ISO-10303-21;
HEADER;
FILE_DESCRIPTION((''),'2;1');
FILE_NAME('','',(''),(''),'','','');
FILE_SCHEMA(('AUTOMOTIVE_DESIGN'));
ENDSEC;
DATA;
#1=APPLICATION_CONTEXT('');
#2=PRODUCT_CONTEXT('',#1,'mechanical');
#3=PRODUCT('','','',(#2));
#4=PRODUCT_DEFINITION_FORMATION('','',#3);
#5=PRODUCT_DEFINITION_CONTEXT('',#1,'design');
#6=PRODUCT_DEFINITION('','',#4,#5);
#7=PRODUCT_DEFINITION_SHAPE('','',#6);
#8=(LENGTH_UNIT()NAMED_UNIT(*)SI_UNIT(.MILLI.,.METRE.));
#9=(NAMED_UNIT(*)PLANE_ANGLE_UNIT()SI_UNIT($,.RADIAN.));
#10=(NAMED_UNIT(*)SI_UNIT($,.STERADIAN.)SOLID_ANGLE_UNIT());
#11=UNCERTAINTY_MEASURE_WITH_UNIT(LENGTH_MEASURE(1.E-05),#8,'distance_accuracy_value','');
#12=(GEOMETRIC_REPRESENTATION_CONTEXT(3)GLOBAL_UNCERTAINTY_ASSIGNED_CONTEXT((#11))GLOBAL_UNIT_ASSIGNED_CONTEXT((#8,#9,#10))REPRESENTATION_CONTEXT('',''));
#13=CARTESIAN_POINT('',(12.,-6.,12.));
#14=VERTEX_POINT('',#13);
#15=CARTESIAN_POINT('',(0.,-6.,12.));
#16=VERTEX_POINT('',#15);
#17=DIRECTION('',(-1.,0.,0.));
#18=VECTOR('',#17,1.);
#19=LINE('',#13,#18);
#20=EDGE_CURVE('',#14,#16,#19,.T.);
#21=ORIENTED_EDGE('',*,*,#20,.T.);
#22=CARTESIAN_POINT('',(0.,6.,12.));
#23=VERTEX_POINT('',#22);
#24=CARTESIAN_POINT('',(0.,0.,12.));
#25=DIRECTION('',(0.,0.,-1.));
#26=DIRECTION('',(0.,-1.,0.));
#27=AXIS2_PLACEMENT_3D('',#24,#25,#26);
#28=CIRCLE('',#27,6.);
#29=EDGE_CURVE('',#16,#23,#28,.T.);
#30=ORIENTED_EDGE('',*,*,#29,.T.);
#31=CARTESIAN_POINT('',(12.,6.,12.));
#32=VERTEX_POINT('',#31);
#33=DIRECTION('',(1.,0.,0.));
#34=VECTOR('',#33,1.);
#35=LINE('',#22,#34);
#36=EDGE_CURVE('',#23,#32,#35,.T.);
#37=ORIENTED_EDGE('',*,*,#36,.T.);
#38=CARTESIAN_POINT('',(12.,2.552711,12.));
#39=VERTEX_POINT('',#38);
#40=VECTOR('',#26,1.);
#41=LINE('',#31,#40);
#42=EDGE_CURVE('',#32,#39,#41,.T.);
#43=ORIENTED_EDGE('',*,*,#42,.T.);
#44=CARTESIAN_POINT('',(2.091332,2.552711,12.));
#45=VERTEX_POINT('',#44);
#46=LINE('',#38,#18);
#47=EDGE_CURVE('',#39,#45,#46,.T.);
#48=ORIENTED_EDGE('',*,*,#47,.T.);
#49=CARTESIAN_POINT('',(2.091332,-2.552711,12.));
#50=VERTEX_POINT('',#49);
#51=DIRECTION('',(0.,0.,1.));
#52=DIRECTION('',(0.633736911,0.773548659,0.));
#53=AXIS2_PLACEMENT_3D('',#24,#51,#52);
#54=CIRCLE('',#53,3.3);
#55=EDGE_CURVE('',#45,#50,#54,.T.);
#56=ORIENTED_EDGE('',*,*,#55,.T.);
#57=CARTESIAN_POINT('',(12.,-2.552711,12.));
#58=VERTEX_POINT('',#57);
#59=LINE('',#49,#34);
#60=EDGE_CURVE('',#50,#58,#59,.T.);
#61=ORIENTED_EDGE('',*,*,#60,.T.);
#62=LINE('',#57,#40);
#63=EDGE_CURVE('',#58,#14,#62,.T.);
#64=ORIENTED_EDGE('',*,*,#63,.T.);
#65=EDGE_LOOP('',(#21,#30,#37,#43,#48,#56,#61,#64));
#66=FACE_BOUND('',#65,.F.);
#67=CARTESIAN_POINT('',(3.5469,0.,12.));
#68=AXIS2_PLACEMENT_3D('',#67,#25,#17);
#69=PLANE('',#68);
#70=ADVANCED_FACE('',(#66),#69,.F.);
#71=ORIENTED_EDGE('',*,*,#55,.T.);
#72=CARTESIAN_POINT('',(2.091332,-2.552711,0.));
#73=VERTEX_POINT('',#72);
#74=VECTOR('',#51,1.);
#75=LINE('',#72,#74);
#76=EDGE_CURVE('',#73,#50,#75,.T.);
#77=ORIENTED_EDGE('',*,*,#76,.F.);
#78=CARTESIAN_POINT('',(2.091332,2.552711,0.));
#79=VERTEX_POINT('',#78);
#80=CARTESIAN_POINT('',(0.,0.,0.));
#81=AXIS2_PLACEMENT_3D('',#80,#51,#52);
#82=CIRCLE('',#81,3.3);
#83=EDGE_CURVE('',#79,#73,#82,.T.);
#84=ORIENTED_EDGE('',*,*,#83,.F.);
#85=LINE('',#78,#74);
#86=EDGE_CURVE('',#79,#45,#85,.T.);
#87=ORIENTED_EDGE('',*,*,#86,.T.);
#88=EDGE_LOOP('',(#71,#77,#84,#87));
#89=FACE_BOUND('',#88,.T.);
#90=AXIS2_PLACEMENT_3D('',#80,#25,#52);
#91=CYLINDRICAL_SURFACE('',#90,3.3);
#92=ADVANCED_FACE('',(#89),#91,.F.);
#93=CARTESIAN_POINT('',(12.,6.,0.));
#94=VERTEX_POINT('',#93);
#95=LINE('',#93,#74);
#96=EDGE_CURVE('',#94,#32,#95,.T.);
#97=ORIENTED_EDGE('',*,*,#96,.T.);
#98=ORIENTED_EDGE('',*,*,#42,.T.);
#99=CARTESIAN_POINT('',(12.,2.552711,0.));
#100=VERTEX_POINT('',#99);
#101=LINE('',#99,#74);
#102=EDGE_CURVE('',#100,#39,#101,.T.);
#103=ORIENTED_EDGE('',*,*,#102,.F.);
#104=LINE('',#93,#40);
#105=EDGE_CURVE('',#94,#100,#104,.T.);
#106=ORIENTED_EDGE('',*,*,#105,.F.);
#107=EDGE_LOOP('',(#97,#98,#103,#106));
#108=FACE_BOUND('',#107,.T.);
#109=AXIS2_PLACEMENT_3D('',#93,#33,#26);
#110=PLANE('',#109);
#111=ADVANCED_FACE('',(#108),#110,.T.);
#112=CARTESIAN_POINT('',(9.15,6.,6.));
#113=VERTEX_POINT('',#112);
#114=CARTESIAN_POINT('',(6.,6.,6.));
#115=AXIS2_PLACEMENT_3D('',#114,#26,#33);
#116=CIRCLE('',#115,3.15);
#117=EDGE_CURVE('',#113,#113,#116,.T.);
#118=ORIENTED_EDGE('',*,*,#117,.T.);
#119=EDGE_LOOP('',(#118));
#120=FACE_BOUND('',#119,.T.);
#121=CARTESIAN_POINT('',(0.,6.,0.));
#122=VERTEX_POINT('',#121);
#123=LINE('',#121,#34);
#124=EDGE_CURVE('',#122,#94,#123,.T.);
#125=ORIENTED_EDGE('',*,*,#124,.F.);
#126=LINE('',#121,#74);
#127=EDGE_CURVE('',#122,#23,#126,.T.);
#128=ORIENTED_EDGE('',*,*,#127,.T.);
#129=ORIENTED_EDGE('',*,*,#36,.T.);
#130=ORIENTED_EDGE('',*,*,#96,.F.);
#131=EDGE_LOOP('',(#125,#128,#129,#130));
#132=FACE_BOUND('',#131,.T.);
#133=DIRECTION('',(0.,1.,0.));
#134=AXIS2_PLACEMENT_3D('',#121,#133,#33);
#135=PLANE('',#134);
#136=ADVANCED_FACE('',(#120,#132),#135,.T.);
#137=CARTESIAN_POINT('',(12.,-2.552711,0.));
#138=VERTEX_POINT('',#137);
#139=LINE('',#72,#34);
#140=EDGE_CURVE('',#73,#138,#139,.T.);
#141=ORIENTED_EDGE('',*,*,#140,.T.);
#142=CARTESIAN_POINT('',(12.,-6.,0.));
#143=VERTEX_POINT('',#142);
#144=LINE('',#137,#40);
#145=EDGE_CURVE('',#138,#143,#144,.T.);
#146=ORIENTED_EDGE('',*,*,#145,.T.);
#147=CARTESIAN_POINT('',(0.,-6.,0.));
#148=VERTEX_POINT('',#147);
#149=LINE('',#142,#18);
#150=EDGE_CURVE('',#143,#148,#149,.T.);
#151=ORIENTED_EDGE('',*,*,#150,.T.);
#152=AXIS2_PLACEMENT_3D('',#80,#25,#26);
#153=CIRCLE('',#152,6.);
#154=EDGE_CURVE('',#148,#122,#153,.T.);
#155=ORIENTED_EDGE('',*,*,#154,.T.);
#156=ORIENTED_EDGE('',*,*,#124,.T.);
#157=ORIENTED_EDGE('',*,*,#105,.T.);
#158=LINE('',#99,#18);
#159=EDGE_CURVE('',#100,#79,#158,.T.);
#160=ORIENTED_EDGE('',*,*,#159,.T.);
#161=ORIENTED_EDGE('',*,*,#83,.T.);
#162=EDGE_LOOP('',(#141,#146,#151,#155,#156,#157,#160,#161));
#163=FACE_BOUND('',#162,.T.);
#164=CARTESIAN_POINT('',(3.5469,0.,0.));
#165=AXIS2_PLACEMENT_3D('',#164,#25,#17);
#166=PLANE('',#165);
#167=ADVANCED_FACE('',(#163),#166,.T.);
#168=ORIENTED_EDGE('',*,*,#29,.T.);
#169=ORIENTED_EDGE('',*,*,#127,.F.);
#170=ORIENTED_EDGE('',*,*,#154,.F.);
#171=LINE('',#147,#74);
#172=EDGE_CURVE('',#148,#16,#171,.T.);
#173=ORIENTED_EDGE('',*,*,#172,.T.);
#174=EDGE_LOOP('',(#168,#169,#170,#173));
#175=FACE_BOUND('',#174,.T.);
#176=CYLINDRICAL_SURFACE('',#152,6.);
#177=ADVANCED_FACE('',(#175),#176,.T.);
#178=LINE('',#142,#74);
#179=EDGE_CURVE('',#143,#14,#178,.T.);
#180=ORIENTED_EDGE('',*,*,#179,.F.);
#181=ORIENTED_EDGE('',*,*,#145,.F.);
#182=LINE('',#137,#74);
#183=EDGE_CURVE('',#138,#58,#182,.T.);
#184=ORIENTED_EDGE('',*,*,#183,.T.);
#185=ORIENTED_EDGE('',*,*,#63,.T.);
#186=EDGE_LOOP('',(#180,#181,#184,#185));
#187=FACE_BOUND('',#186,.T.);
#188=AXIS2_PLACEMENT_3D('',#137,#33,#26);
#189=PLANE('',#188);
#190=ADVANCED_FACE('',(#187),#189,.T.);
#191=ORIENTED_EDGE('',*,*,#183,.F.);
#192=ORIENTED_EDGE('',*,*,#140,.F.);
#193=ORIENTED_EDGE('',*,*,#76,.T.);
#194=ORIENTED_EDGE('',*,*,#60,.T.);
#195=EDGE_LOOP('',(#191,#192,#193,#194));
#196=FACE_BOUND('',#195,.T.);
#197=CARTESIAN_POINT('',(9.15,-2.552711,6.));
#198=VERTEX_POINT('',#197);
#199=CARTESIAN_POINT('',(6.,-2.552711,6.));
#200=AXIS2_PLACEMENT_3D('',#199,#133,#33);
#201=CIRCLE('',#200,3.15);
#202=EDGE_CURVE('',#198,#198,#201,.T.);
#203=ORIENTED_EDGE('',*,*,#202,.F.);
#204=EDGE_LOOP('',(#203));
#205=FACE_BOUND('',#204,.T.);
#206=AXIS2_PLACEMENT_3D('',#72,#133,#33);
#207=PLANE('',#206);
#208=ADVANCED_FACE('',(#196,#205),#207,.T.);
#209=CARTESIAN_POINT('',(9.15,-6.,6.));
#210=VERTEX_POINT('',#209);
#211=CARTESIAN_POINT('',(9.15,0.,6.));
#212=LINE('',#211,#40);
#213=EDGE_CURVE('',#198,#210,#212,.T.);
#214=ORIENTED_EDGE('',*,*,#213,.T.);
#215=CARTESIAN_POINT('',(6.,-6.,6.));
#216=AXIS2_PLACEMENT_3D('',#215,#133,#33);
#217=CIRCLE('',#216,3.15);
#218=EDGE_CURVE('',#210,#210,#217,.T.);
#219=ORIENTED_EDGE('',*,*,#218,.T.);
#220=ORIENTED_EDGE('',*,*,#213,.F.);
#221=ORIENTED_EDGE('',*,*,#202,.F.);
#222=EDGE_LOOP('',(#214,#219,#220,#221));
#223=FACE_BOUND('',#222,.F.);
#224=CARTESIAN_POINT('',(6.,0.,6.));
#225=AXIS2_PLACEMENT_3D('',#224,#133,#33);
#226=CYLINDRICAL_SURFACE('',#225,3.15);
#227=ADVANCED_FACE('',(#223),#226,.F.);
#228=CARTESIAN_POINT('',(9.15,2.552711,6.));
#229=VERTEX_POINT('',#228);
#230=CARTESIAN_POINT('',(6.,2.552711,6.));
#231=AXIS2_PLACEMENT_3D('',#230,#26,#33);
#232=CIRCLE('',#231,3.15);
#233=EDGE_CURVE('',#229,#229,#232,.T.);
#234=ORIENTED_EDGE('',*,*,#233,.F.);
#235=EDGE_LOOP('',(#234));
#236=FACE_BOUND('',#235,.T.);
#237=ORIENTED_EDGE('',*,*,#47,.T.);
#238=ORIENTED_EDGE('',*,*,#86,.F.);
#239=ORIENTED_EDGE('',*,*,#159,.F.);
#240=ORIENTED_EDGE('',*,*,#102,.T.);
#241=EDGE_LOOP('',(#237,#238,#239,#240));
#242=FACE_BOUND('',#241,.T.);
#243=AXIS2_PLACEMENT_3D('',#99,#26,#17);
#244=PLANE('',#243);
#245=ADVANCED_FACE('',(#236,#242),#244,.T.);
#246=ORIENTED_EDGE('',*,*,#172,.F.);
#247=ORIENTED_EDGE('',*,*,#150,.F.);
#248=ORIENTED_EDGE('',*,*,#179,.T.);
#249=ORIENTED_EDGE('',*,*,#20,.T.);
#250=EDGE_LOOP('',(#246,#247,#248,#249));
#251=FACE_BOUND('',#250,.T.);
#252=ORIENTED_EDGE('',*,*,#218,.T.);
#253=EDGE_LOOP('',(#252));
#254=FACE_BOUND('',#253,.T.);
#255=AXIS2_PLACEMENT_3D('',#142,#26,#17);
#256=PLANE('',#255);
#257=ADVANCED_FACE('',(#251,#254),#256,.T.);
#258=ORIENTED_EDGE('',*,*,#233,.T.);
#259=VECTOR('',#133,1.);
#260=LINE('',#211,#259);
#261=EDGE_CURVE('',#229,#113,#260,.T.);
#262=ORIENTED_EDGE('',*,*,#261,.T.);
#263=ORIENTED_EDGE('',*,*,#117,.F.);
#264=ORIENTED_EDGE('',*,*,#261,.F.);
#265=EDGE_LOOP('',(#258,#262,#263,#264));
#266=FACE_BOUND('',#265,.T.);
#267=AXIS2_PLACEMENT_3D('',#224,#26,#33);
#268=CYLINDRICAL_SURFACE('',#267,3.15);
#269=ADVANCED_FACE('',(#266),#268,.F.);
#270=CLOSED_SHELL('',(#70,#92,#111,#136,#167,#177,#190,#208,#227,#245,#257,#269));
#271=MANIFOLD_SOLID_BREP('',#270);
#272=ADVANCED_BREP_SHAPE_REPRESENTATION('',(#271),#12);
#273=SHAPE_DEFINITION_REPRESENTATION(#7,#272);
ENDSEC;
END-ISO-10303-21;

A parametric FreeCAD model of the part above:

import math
import FreeCAD as App
import Part
import Sketcher
from FreeCAD import Vector
Q = App.Units.Quantity

doc = App.newDocument("Part")
body = doc.addObject("PartDesign::Body", "Body")

sketch1 = doc.addObject("Sketcher::SketchObject", "Sketch")
body.addObject(sketch1)
sketch1.AttachmentSupport = (doc.XY_Plane, [""])
sketch1.MapMode = "FlatFace"
sketch1.addGeometry([
    Part.LineSegment(Vector(12, 6, 0), Vector(0, 6, 0)),
    Part.ArcOfCircle(Part.Circle(Vector(0, 0, 0), Vector(0, 0, 1), 6), math.radians(90), math.radians(270)),
    Part.LineSegment(Vector(0, -6, 0), Vector(12, -6, 0)),
    Part.LineSegment(Vector(12, -6, 0), Vector(12, -2.552711, 0)),
    Part.LineSegment(Vector(12, -2.552711, 0), Vector(2.091332, -2.552711, 0)),
    Part.ArcOfCircle(Part.Circle(Vector(0, 0, 0), Vector(0, 0, 1), 3.3), math.radians(50.673634), math.radians(309.326366)),
    Part.LineSegment(Vector(2.091332, 2.552711, 0), Vector(12, 2.552711, 0)),
    Part.LineSegment(Vector(12, 2.552711, 0), Vector(12, 6, 0)),
], False)
sketch1.addConstraint([
    Sketcher.Constraint("Tangent", 0, 2, 1, 1),
    Sketcher.Constraint("Tangent", 1, 2, 2, 1),
    Sketcher.Constraint("Coincident", 2, 2, 3, 1),
    Sketcher.Constraint("Coincident", 3, 2, 4, 1),
    Sketcher.Constraint("Coincident", 4, 2, 5, 2),
    Sketcher.Constraint("Coincident", 5, 1, 6, 1),
    Sketcher.Constraint("Coincident", 6, 2, 7, 1),
    Sketcher.Constraint("Coincident", 7, 2, 0, 1),
    Sketcher.Constraint("Horizontal", 0),
    Sketcher.Constraint("Horizontal", 2),
    Sketcher.Constraint("Vertical", 3),
    Sketcher.Constraint("Horizontal", 4),
    Sketcher.Constraint("Horizontal", 6),
    Sketcher.Constraint("Vertical", 7),
    Sketcher.Constraint("Coincident", 1, 3, -1, 1),
    Sketcher.Constraint("Coincident", 5, 3, -1, 1),
    Sketcher.Constraint("Symmetric", 3, 2, 6, 2, -1),
    Sketcher.Constraint("Radius", 1, Q("6 mm")),
    Sketcher.Constraint("Radius", 5, Q("3.3 mm")),
    Sketcher.Constraint("DistanceX", 0, 2, 0, 1, Q("12 mm")),
    Sketcher.Constraint("DistanceX", 4, 2, 4, 1, Q("9.908668 mm")),
])
pad1 = doc.addObject("PartDesign::Pad", "Pad")
body.addObject(pad1)
pad1.Profile = sketch1
pad1.Length = 12

sketch2 = doc.addObject("Sketcher::SketchObject", "Sketch001")
body.addObject(sketch2)
sketch2.AttachmentSupport = (doc.XZ_Plane, [""])
sketch2.MapMode = "FlatFace"
sketch2.addGeometry(Part.Circle(Vector(6, 6, 0), Vector(0, 0, 1), 3.15), False)
sketch2.addConstraint([
    Sketcher.Constraint("Diameter", 0, Q("6.3 mm")),
    Sketcher.Constraint("DistanceX", -1, 1, 0, 3, Q("6 mm")),
    Sketcher.Constraint("DistanceY", -1, 1, 0, 3, Q("6 mm")),
])
pocket1 = doc.addObject("PartDesign::Pocket", "Pocket")
body.addObject(pocket1)
pocket1.Profile = sketch2
pocket1.Type = "ThroughAll"
pocket1.Midplane = True

doc.recompute()
